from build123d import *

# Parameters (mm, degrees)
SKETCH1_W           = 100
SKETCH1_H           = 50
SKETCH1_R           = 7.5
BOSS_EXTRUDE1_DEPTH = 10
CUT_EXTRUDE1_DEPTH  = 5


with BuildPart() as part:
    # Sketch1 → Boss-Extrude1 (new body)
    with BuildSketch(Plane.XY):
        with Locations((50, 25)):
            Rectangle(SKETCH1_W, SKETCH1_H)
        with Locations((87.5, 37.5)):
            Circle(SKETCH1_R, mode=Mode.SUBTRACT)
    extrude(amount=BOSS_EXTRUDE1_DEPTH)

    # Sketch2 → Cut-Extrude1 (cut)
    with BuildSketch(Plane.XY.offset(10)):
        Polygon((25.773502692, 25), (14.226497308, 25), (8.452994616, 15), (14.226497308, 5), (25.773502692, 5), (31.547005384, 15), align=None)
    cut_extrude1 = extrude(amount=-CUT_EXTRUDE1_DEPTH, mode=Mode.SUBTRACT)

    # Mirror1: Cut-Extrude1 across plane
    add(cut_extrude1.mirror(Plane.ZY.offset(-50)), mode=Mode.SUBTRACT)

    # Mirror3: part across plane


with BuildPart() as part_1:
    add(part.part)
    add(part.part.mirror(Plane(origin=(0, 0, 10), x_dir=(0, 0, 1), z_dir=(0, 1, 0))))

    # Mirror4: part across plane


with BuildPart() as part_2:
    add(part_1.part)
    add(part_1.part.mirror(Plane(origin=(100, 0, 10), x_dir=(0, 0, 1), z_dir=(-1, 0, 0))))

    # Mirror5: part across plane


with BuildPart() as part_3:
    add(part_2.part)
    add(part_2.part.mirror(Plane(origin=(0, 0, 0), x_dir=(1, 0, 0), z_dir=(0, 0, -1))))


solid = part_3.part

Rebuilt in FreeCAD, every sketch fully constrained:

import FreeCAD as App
import Part
import Sketcher

V = App.Vector
Q = App.Units.Quantity


def add_polygon(sketch, points):
    """Adds a closed chain of lines whose ends are joined by coincident constraints."""
    first, n = sketch.GeometryCount, len(points)
    for a, b in zip(points, points[1:] + points[:1]):
        sketch.addGeometry(Part.LineSegment(App.Vector(*a, 0), App.Vector(*b, 0)), False)
    for i in range(n):
        sketch.addConstraint(Sketcher.Constraint("Coincident", first + i, 2, first + (i + 1) % n, 1))

doc = App.newDocument("Part")
body = doc.addObject("PartDesign::Body", "Body")

sketch1 = body.newObject("Sketcher::SketchObject", "Sketch")
sketch1.AttachmentSupport = (doc.getObject("XY_Plane"), [""])
sketch1.MapMode = "FlatFace"
add_polygon(sketch1, [(0, 50), (0, 0), (100, 0), (100, 50)])
sketch1.addGeometry(Part.Circle(V(88, 38, 0), V(0, 0, 1), 8), False)
sketch1.addConstraint([
    Sketcher.Constraint("Vertical", 0),
    Sketcher.Constraint("Horizontal", 1),
    Sketcher.Constraint("Vertical", 2),
    Sketcher.Constraint("Horizontal", 3),
    Sketcher.Constraint("Coincident", 0, 2, -1, 1),
    Sketcher.Constraint("Diameter", 4, 15.0),
    Sketcher.Constraint("DistanceX", 1, 1, 1, 2, 100.0),
    Sketcher.Constraint("DistanceY", 0, 2, 0, 1, 50.0),
    Sketcher.Constraint("DistanceX", -1, 1, 4, 3, 87.5),
    Sketcher.Constraint("DistanceY", -1, 1, 4, 3, 37.5),
])
pad1 = body.newObject("PartDesign::Pad", "Pad")
pad1.Profile = sketch1
pad1.Length = 10

sketch2 = body.newObject("Sketcher::SketchObject", "Sketch001")
sketch2.AttachmentSupport = (doc.getObject("XY_Plane"), [""])
sketch2.MapMode = "FlatFace"
sketch2.AttachmentOffset = App.Placement(V(0, 0, 10), App.Rotation())
add_polygon(sketch2, [(26, 25), (14, 25), (8, 15), (14, 5), (26, 5), (32, 15)])
sketch2.addConstraint([
    Sketcher.Constraint("Horizontal", 0),
    Sketcher.Constraint("Horizontal", 3),
    Sketcher.Constraint("Parallel", 1, 4),
    Sketcher.Constraint("Parallel", 2, 5),
    Sketcher.Constraint("Horizontal", 1, 2, 4, 2),
    Sketcher.Constraint("Vertical", 0, 2, 2, 2),
    Sketcher.Constraint("Vertical", 3, 2, 5, 2),
    Sketcher.Constraint("Angle", 1, Q("-120 deg")),
    Sketcher.Constraint("DistanceY", -1, 1, 0, 2, 25.0),
    Sketcher.Constraint("DistanceY", -1, 1, 1, 2, 15.0),
    Sketcher.Constraint("DistanceX", 0, 2, 0, 1, 11.547005),
    Sketcher.Constraint("DistanceX", -1, 1, 0, 2, 14.226497),
])
pocket1 = body.newObject("PartDesign::Pocket", "Pocket")
pocket1.Profile = sketch2
pocket1.Length = 5
doc.recompute()

datumplane = body.newObject("PartDesign::Plane", "DatumPlane")
datumplane.AttachmentSupport = (doc.getObject("YZ_Plane"), [""])
datumplane.MapMode = "FlatFace"
datumplane.AttachmentOffset = App.Placement(V(0, 0, 50), App.Rotation())
mirrored = body.newObject("PartDesign::Mirrored", "Mirrored")
mirrored.Originals = [pocket1]
mirrored.MirrorPlane = (datumplane, [""])
body.Tip = mirrored
body2 = doc.addObject("PartDesign::Body", "Body001")
doc.recompute()

body2.BaseFeature = body
doc.recompute()

mirroring = doc.addObject("Part::Mirroring", "Mirroring")
mirroring.Source = body
mirroring.Base = V(0, 0, 10)
mirroring.Normal = V(0, 1, 0)
body3 = doc.addObject("PartDesign::Body", "Body002")
body3.BaseFeature = mirroring
boolean = body2.newObject("PartDesign::Boolean", "Boolean")
boolean.Type = "Fuse"
boolean.addObjects([body3])
doc.recompute()
body4 = doc.addObject("PartDesign::Body", "Body003")
doc.recompute()

body4.BaseFeature = body2
doc.recompute()

mirroring2 = doc.addObject("Part::Mirroring", "Mirroring001")
mirroring2.Source = body2
mirroring2.Base = V(100, 0, 10)
mirroring2.Normal = V(-1, 0, 0)
body5 = doc.addObject("PartDesign::Body", "Body004")
body5.BaseFeature = mirroring2
boolean2 = body4.newObject("PartDesign::Boolean", "Boolean001")
boolean2.Type = "Fuse"
boolean2.addObjects([body5])
doc.recompute()
body6 = doc.addObject("PartDesign::Body", "Body005")
doc.recompute()

body6.BaseFeature = body4
doc.recompute()

mirroring3 = doc.addObject("Part::Mirroring", "Mirroring002")
mirroring3.Source = body4
mirroring3.Base = V(0, 0, 0)
mirroring3.Normal = V(0, 0, -1)
body7 = doc.addObject("PartDesign::Body", "Body006")
body7.BaseFeature = mirroring3
boolean3 = body6.newObject("PartDesign::Boolean", "Boolean002")
boolean3.Type = "Fuse"
boolean3.addObjects([body7])
doc.recompute()
mirroring.Visibility = False
mirroring2.Visibility = False
mirroring3.Visibility = False

doc.recompute()
